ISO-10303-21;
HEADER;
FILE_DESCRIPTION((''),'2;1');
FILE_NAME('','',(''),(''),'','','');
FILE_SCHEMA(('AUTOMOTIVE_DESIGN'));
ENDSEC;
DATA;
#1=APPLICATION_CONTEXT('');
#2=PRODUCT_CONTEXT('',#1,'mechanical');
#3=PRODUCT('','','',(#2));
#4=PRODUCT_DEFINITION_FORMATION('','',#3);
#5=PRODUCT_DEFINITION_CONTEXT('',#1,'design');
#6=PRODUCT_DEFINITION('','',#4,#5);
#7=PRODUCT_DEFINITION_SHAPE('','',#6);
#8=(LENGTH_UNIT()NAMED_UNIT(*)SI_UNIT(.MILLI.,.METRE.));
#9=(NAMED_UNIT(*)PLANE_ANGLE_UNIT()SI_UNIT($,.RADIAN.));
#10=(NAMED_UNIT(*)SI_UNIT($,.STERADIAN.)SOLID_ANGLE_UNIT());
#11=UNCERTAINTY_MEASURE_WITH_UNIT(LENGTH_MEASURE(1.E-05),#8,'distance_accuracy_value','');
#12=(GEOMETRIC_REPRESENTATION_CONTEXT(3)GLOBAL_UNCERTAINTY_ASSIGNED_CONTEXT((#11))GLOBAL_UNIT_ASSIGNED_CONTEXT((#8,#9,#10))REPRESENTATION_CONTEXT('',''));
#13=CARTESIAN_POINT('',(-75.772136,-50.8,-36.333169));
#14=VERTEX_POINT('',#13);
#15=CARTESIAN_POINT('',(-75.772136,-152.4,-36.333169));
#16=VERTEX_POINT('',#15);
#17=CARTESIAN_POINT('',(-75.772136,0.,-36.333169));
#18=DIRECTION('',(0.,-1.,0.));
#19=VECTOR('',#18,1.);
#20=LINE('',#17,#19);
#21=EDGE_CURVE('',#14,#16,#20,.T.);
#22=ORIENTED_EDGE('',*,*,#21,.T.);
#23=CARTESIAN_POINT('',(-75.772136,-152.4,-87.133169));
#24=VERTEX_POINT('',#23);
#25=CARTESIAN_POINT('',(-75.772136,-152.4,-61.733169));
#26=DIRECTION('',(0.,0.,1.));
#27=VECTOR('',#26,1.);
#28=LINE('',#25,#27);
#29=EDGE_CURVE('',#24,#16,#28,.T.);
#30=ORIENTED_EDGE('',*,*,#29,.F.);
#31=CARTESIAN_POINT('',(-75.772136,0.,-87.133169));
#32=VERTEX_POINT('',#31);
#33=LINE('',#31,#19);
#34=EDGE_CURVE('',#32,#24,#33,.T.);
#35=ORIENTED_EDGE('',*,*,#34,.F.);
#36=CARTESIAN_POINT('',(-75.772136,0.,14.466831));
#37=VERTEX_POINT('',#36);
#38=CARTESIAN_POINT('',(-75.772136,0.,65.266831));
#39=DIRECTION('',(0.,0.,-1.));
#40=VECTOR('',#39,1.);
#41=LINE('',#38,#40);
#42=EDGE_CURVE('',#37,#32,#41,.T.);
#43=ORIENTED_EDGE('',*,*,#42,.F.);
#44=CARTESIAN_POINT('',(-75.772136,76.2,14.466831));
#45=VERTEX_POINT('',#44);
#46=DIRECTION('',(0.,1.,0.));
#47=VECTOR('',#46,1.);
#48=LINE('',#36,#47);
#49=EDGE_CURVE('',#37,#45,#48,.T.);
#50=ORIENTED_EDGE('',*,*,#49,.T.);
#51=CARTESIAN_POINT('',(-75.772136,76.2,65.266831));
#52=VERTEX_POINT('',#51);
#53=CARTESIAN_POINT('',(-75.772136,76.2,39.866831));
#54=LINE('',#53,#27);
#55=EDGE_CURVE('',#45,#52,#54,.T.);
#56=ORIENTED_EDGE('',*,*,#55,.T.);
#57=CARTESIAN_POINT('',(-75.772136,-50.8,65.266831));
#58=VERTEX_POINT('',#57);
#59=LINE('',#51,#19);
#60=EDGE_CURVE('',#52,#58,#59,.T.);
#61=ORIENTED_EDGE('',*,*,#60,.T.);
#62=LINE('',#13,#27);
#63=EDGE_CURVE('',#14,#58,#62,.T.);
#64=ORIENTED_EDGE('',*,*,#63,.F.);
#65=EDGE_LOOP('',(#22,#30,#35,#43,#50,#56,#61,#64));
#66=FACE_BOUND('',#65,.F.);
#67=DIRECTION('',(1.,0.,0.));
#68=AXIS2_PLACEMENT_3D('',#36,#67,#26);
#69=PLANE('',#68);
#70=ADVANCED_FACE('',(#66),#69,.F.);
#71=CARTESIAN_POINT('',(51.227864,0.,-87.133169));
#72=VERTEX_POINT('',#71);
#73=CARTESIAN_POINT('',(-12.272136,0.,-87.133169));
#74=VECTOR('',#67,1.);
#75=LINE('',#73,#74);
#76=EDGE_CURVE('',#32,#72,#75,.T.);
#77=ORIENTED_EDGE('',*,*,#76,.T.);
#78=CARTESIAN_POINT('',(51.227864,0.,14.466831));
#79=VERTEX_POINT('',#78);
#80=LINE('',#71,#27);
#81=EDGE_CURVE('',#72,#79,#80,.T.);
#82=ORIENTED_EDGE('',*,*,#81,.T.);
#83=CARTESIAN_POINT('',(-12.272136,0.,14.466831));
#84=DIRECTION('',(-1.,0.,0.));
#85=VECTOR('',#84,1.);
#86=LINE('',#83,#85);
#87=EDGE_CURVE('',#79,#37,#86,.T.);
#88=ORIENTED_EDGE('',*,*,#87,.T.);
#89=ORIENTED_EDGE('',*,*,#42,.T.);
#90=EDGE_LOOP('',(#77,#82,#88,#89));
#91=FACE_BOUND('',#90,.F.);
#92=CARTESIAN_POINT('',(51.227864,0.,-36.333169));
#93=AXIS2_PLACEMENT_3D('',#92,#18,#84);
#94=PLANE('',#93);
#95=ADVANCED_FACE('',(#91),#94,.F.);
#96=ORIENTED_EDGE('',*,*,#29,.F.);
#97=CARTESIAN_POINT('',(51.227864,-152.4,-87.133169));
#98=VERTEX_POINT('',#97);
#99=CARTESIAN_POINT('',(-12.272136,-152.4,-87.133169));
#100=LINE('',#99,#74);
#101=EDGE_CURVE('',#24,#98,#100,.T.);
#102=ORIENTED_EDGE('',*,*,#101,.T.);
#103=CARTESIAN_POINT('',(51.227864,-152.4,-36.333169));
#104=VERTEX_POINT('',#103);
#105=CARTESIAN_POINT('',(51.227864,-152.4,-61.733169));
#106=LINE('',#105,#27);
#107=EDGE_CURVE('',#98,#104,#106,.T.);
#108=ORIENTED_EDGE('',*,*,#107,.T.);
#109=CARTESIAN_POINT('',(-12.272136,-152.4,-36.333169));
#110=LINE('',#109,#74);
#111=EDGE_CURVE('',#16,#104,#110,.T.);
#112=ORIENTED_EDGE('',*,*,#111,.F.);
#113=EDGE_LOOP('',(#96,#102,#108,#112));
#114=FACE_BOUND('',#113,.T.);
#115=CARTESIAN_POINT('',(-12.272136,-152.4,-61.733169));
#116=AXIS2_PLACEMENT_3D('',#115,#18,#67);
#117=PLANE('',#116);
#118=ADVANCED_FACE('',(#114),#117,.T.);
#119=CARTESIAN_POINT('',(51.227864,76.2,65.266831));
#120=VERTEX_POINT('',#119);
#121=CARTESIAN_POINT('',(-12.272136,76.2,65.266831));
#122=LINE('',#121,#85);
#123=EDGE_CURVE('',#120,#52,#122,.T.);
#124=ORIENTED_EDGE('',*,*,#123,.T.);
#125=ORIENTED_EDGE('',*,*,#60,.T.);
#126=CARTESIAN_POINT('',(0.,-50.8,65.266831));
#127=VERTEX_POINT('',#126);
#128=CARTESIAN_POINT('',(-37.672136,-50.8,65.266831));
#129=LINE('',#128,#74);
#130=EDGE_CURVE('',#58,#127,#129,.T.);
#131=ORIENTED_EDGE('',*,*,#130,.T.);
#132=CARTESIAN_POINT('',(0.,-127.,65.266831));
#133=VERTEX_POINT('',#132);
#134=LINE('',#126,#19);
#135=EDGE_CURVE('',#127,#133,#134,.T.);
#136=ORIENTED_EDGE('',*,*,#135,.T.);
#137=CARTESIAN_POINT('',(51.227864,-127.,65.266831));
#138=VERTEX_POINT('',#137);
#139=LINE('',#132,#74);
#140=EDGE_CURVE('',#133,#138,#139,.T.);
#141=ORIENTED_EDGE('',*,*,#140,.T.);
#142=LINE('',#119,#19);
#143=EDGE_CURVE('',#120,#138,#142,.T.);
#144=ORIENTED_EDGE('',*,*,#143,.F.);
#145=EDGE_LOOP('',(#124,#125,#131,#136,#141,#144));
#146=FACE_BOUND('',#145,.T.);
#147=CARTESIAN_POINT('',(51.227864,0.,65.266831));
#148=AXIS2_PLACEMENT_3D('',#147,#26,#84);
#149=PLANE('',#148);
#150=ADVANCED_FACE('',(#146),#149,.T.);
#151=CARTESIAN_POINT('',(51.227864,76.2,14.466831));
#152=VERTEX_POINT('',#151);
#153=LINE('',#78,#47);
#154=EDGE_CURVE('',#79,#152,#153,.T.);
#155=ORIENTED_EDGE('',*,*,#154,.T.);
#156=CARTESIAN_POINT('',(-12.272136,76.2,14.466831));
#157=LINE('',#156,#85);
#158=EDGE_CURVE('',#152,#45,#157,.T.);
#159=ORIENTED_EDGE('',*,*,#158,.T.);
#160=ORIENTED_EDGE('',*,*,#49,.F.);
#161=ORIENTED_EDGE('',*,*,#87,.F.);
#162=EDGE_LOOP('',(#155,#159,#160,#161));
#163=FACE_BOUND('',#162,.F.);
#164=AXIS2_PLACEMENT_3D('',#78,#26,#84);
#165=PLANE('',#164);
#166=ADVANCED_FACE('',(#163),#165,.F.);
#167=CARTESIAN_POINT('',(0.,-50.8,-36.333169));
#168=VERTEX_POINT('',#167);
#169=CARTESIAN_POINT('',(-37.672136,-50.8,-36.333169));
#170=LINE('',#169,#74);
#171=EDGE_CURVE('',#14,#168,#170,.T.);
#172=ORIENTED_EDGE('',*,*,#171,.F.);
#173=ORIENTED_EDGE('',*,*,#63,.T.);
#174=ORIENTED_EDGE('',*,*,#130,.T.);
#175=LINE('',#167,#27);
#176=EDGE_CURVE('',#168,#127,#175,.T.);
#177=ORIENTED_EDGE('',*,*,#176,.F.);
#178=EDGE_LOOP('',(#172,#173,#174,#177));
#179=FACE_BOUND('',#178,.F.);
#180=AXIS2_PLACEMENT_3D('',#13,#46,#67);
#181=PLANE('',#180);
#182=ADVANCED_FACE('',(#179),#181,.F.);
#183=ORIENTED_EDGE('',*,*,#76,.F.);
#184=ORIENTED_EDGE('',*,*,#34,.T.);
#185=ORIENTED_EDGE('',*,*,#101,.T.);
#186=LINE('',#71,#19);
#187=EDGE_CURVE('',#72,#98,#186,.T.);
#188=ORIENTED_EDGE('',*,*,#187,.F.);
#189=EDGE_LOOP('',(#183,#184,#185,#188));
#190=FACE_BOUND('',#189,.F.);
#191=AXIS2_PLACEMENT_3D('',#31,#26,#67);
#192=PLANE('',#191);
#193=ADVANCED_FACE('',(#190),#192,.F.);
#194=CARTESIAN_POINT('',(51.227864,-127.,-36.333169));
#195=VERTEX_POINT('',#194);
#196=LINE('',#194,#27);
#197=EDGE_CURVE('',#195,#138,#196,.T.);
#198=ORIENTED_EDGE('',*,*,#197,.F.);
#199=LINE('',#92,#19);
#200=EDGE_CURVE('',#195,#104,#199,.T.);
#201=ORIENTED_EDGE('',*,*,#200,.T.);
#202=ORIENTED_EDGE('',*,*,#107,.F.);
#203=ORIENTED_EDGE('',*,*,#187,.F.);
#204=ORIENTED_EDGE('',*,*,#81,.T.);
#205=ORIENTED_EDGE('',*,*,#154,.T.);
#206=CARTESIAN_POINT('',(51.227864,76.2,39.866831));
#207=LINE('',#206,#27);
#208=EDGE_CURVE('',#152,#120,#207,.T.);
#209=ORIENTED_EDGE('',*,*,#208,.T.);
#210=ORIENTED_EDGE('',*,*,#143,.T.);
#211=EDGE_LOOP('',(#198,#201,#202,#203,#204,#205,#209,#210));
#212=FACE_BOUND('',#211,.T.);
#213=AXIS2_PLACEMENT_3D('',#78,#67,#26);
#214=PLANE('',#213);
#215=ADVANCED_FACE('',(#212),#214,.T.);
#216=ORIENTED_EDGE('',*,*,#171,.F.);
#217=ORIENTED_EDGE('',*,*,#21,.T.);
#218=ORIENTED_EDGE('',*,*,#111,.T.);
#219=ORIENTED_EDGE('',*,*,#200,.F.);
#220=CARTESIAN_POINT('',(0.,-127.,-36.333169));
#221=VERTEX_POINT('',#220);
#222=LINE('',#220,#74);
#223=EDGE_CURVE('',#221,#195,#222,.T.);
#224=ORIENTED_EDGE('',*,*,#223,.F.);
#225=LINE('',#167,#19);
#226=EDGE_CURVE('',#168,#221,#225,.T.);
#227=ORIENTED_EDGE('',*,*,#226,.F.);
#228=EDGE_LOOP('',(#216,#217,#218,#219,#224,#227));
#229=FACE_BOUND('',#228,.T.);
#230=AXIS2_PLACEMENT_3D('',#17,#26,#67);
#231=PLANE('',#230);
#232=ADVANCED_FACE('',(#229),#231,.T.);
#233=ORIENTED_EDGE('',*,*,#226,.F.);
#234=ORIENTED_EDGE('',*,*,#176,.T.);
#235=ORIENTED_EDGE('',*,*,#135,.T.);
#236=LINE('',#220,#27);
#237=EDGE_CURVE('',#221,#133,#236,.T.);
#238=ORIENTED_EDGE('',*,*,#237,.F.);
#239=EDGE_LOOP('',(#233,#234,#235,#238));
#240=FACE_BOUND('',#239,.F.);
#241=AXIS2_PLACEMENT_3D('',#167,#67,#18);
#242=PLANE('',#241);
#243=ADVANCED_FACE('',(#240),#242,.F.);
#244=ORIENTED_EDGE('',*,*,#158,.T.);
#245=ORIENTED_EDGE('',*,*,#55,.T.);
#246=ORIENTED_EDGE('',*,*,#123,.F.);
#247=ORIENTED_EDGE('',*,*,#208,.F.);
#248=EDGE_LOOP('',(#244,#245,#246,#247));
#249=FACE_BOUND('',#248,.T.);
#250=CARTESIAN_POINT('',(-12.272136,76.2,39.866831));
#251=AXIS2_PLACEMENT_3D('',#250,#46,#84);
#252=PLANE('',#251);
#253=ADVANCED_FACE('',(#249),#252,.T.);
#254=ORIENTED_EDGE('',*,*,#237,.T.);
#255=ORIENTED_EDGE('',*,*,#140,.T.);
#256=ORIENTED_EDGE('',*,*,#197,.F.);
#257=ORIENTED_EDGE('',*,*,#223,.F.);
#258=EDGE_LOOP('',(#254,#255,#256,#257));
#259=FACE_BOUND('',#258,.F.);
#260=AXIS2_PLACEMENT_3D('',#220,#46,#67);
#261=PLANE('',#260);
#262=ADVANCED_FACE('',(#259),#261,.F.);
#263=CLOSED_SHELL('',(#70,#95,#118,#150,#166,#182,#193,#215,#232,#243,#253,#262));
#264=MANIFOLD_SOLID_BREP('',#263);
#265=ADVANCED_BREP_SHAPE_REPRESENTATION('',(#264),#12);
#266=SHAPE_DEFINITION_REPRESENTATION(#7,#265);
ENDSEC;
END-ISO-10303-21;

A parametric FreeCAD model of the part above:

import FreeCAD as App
import Part
import Sketcher

V = App.Vector
Q = App.Units.Quantity


def add_polygon(sketch, points):
    """Adds a closed chain of lines whose ends are joined by coincident constraints."""
    first, n = sketch.GeometryCount, len(points)
    for a, b in zip(points, points[1:] + points[:1]):
        sketch.addGeometry(Part.LineSegment(App.Vector(*a, 0), App.Vector(*b, 0)), False)
    for i in range(n):
        sketch.addConstraint(Sketcher.Constraint("Coincident", first + i, 2, first + (i + 1) % n, 1))

doc = App.newDocument("Part")
body = doc.addObject("PartDesign::Body", "Body")

sketch1 = doc.addObject("Sketcher::SketchObject", "Sketch")
body.addObject(sketch1)
sketch1.AttachmentSupport = (doc.XZ_Plane, [""])
sketch1.MapMode = "FlatFace"
add_polygon(sketch1, [(-75.772136, -36.333169), (-75.772136, -87.133169), (51.227864, -87.133169), (51.227864, -36.333169)])
sketch1.addConstraint(Sketcher.Constraint("Vertical", 0))
sketch1.addConstraint(Sketcher.Constraint("Horizontal", 1))
sketch1.addConstraint(Sketcher.Constraint("Vertical", 2))
sketch1.addConstraint(Sketcher.Constraint("Horizontal", 3))
sketch1.addConstraint(Sketcher.Constraint("DistanceX", 1, 1, 1, 2, Q("5 in")))
sketch1.addConstraint(Sketcher.Constraint("DistanceY", 0, 2, 0, 1, Q("2 in")))
sketch1.addConstraint(Sketcher.Constraint("DistanceY", 0, 2, -1, 1, Q("87.133169 mm")))
sketch1.addConstraint(Sketcher.Constraint("DistanceX", 0, 2, -1, 1, Q("75.772136 mm")))
pad1 = doc.addObject("PartDesign::Pad", "Pad")
body.addObject(pad1)
pad1.Profile = sketch1
pad1.Length = Q("6 in")

sketch2 = doc.addObject("Sketcher::SketchObject", "Sketch001")
body.addObject(sketch2)
sketch2.AttachmentSupport = (doc.XY_Plane, [""])
sketch2.MapMode = "FlatFace"
sketch2.AttachmentOffset = App.Placement(V(0, 0, -36.333169), App.Rotation())
add_polygon(sketch2, [(-75.772136, 0), (-75.772136, -50.8), (0.427864, -50.8), (0.427864, 0)])
sketch2.addConstraint(Sketcher.Constraint("Vertical", 0))
sketch2.addConstraint(Sketcher.Constraint("Horizontal", 1))
sketch2.addConstraint(Sketcher.Constraint("Vertical", 2))
sketch2.addConstraint(Sketcher.Constraint("Horizontal", 3))
sketch2.addConstraint(Sketcher.Constraint("PointOnObject", 2, 2, -1))
sketch2.addConstraint(Sketcher.Constraint("DistanceX", 1, 1, 1, 2, Q("3 in")))
sketch2.addConstraint(Sketcher.Constraint("DistanceY", 0, 2, 0, 1, Q("2 in")))
sketch2.addConstraint(Sketcher.Constraint("DistanceX", 0, 2, -1, 1, Q("75.772136 mm")))
pad2 = doc.addObject("PartDesign::Pad", "Pad001")
body.addObject(pad2)
pad2.Profile = sketch2
pad2.Length = Q("4 in")

sketch3 = doc.addObject("Sketcher::SketchObject", "Sketch002")
body.addObject(sketch3)
sketch3.AttachmentSupport = (doc.XY_Plane, [""])
sketch3.MapMode = "FlatFace"
sketch3.AttachmentOffset = App.Placement(V(0, 0, -36.333169), App.Rotation())
add_polygon(sketch3, [(51.227864, -127), (51.227864, 0), (0.427864, 0), (0.427864, -50.8), (0, -50.8), (0, -127)])
sketch3.addConstraint(Sketcher.Constraint("Vertical", 0))
sketch3.addConstraint(Sketcher.Constraint("Horizontal", 1))
sketch3.addConstraint(Sketcher.Constraint("Vertical", 2))
sketch3.addConstraint(Sketcher.Constraint("Horizontal", 3))
sketch3.addConstraint(Sketcher.Constraint("Vertical", 4))
sketch3.addConstraint(Sketcher.Constraint("Horizontal", 5))
sketch3.addConstraint(Sketcher.Constraint("PointOnObject", 0, 2, -1))
sketch3.addConstraint(Sketcher.Constraint("PointOnObject", 3, 2, -2))
sketch3.addConstraint(Sketcher.Constraint("Equal", 1, 2))
sketch3.addConstraint(Sketcher.Constraint("DistanceX", 1, 2, 1, 1, Q("2 in")))
sketch3.addConstraint(Sketcher.Constraint("DistanceY", 0, 1, 0, 2, Q("5 in")))
sketch3.addConstraint(Sketcher.Constraint("DistanceX", 3, 2, 3, 1, Q("0.427864 mm")))
pad3 = doc.addObject("PartDesign::Pad", "Pad002")
body.addObject(pad3)
pad3.Profile = sketch3
pad3.Length = Q("4 in")

sketch4 = doc.addObject("Sketcher::SketchObject", "Sketch003")
body.addObject(sketch4)
sketch4.AttachmentSupport = (doc.XZ_Plane, [""])
sketch4.MapMode = "FlatFace"
add_polygon(sketch4, [(51.227864, 65.266831), (51.227864, 14.466831), (-75.772136, 14.466831), (-75.772136, 65.266831)])
sketch4.addConstraint(Sketcher.Constraint("Vertical", 0))
sketch4.addConstraint(Sketcher.Constraint("Horizontal", 1))
sketch4.addConstraint(Sketcher.Constraint("Vertical", 2))
sketch4.addConstraint(Sketcher.Constraint("Horizontal", 3))
sketch4.addConstraint(Sketcher.Constraint("DistanceX", 1, 2, 1, 1, Q("5 in")))
sketch4.addConstraint(Sketcher.Constraint("DistanceY", 0, 2, 0, 1, Q("2 in")))
sketch4.addConstraint(Sketcher.Constraint("DistanceY", -1, 1, 0, 2, Q("14.466831 mm")))
sketch4.addConstraint(Sketcher.Constraint("DistanceX", -1, 1, 0, 2, Q("51.227864 mm")))
pad4 = doc.addObject("PartDesign::Pad", "Pad003")
body.addObject(pad4)
pad4.Profile = sketch4
pad4.Length = Q("3 in")
pad4.Reversed = True

doc.recompute()
